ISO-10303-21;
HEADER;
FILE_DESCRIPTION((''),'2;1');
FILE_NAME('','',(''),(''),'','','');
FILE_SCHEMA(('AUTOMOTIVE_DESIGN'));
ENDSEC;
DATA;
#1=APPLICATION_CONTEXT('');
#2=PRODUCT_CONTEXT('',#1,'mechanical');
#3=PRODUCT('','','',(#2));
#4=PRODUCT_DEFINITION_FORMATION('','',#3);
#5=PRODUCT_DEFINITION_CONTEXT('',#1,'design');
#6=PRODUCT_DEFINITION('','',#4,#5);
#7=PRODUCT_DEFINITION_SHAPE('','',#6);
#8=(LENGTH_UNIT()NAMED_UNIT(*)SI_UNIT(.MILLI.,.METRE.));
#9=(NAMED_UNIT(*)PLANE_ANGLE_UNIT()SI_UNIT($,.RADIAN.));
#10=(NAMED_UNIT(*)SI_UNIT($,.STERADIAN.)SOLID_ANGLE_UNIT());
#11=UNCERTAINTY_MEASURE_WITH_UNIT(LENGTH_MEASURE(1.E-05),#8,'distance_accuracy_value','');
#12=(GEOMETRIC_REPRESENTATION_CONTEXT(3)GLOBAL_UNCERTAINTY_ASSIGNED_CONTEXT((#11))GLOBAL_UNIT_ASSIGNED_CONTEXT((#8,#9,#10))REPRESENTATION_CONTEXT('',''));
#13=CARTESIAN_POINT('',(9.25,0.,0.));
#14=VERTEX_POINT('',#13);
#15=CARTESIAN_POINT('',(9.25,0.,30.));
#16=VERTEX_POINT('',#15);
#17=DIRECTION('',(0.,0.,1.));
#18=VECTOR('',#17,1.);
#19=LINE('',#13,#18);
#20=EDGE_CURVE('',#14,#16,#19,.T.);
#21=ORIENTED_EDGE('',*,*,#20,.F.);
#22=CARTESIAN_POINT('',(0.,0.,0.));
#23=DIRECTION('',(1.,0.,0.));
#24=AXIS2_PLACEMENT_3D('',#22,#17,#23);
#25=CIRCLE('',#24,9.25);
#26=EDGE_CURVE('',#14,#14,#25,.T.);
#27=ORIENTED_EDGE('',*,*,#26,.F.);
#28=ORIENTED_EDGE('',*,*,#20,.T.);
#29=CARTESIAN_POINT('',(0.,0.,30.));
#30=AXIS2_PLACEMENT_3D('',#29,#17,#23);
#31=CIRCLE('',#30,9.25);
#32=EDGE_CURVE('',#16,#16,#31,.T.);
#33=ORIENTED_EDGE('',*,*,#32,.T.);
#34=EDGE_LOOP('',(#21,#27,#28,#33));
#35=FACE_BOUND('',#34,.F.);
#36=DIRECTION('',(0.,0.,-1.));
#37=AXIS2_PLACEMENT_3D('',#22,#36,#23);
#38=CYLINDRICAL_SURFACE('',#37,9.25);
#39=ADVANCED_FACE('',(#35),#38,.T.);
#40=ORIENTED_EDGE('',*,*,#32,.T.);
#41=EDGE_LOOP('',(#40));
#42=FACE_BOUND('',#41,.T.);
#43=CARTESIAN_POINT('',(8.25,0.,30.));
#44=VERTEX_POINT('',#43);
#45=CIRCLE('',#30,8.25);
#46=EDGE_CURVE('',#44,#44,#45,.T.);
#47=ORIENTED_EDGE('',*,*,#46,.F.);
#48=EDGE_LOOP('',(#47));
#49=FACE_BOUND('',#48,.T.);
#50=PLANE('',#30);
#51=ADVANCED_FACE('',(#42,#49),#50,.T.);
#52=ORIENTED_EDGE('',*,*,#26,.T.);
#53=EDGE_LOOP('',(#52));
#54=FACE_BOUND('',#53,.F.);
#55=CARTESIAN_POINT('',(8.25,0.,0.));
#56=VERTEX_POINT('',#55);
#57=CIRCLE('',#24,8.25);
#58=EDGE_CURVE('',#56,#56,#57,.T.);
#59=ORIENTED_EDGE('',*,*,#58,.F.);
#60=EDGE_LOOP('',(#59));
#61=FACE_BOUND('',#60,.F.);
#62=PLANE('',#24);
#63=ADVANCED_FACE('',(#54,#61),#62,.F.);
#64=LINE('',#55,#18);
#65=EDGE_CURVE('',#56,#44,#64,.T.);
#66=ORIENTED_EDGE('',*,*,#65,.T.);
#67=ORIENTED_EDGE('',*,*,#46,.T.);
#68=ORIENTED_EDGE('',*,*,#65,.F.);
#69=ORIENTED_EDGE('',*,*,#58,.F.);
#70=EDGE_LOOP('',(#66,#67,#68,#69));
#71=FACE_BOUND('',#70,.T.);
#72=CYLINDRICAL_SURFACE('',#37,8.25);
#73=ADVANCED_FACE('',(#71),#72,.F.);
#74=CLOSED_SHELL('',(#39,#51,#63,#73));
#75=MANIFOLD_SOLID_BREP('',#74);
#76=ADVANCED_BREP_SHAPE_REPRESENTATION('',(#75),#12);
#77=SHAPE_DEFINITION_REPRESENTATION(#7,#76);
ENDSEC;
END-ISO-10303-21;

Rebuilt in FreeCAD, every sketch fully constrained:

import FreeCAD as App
import Part
import Sketcher
from FreeCAD import Vector
Q = App.Units.Quantity

doc = App.newDocument("Part")
body = doc.addObject("PartDesign::Body", "Body")

# Sketch on XY plane
sketch1 = body.newObject("Sketcher::SketchObject", "Sketch")
sketch1.AttachmentSupport = (doc.getObject("XY_Plane"), [""])
sketch1.MapMode = "FlatFace"
sketch1.addGeometry([
    Part.Circle(Vector(0, 0, 0), Vector(0, 0, 1), 9.25),
    Part.Circle(Vector(0, 0, 0), Vector(0, 0, 1), 8.25),
], False)
sketch1.addConstraint([
    Sketcher.Constraint("Coincident", 0, 3, -1, 1),
    Sketcher.Constraint("Coincident", 1, 3, -1, 1),
    Sketcher.Constraint("Diameter", 0, Q("18.5 mm")),
    Sketcher.Constraint("Diameter", 1, Q("16.5 mm")),
])
pad1 = body.newObject("PartDesign::Pad", "Pad")
pad1.Profile = sketch1
pad1.Length = 30

doc.recompute()
